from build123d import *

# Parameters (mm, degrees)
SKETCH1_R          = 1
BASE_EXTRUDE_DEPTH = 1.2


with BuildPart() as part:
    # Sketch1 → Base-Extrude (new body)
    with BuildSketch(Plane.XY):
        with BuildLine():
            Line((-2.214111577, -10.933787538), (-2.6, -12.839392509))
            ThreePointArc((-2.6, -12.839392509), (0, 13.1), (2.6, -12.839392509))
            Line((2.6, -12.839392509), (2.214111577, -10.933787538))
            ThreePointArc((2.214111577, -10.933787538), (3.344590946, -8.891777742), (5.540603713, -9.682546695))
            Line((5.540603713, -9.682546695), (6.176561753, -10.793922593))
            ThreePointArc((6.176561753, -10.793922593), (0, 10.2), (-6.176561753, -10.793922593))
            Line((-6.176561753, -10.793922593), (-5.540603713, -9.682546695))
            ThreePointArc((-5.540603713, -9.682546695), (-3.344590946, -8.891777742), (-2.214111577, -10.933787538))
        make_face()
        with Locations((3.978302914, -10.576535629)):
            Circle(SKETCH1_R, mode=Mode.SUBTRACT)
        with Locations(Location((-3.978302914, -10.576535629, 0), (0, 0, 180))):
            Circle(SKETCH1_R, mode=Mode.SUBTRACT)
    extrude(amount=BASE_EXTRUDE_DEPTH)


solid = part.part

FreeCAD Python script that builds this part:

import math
import FreeCAD as App
import Part
import Sketcher
from FreeCAD import Vector
Q = App.Units.Quantity

doc = App.newDocument("Part")
body = doc.addObject("PartDesign::Body", "Body")

# Sketch on XY plane
sketch1 = body.newObject("Sketcher::SketchObject", "Sketch")
sketch1.AttachmentSupport = (doc.getObject("XY_Plane"), [""])
sketch1.MapMode = "FlatFace"
sketch1.addGeometry([
    Part.LineSegment(Vector(-2.6, -12.8, 0), Vector(-2.2, -10.9, 0)),  # 0
    Part.ArcOfCircle(Part.Circle(Vector(-4, -10.6, 0), Vector(0, 0, 1), 1.8), math.radians(-11), math.radians(150)),  # 1
    Part.LineSegment(Vector(-5.5, -9.7, 0), Vector(-6.2, -10.8, 0)),  # 2
    Part.ArcOfCircle(Part.Circle(Vector(0, -1.2, 0), Vector(0, 0, 1), 11.4), math.radians(-57), math.radians(237)),  # 3
    Part.LineSegment(Vector(6.2, -10.8, 0), Vector(5.5, -9.7, 0)),  # 4
    Part.ArcOfCircle(Part.Circle(Vector(4, -10.6, 0), Vector(0, 0, 1), 1.8), math.radians(30), math.radians(191)),  # 5
    Part.LineSegment(Vector(2.2, -10.9, 0), Vector(2.6, -12.8, 0)),  # 6
    Part.ArcOfCircle(Part.Circle(Vector(0, 0, 0), Vector(0, 0, 1), 13.1), math.radians(-79), math.radians(259)),  # 7
    Part.Circle(Vector(4, -10.6, 0), Vector(0, 0, 1), 1),  # 8
    Part.Circle(Vector(-4, -10.6, 0), Vector(0, 0, 1), 1),  # 9
], False)
sketch1.addConstraint([
    Sketcher.Constraint("Tangent", 0, 2, 1, 1),
    Sketcher.Constraint("Tangent", 1, 2, 2, 1),
    Sketcher.Constraint("Coincident", 2, 2, 3, 2),
    Sketcher.Constraint("Coincident", 3, 1, 4, 1),
    Sketcher.Constraint("Tangent", 4, 2, 5, 1),
    Sketcher.Constraint("Tangent", 5, 2, 6, 1),
    Sketcher.Constraint("Coincident", 6, 2, 7, 1),
    Sketcher.Constraint("Coincident", 7, 2, 0, 1),
    Sketcher.Constraint("Coincident", 7, 3, -1, 1),
    Sketcher.Constraint("Coincident", 8, 3, 5, 3),
    Sketcher.Constraint("Coincident", 9, 3, 1, 3),
    Sketcher.Constraint("Equal", 1, 5),
    Sketcher.Constraint("Equal", 8, 9),
    Sketcher.Constraint("Symmetric", 1, 3, 5, 3, -2),
    Sketcher.Constraint("Symmetric", 2, 2, 3, 1, -2),
    Sketcher.Constraint("Horizontal", 0, 2, 5, 2),
    Sketcher.Constraint("Diameter", 8, Q("2 mm")),
    Sketcher.Constraint("Radius", 1, Q("1.8 mm")),
    Sketcher.Constraint("Radius", 7, Q("13.1 mm")),
    Sketcher.Constraint("DistanceX", -1, 1, 6, 2, Q("2.6 mm")),
    Sketcher.Constraint("Radius", 3, Q("11.405556 mm")),
    Sketcher.Constraint("DistanceX", 1, 2, 1, 3, Q("1.562301 mm")),
    Sketcher.Constraint("Distance", 2, Q("1.280468 mm")),
    Sketcher.Constraint("DistanceX", 0, 2, -1, 1, Q("2.214112 mm")),
    Sketcher.Constraint("DistanceX", 2, 2, -1, 1, Q("6.176562 mm")),
])
pad1 = body.newObject("PartDesign::Pad", "Pad")
pad1.Profile = sketch1
pad1.Length = 1.2

doc.recompute()
